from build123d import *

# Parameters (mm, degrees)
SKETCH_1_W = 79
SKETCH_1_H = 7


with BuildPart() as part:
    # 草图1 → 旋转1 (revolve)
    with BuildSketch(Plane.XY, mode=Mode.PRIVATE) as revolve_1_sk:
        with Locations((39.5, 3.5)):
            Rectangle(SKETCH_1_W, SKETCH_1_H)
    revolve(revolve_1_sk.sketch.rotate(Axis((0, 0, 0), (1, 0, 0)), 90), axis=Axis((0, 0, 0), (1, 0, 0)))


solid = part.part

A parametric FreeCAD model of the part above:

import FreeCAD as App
import Part
import Sketcher
from FreeCAD import Vector


def add_polygon(sketch, points):
    """Adds a closed chain of lines whose ends are joined by coincident constraints."""
    first, n = sketch.GeometryCount, len(points)
    for a, b in zip(points, points[1:] + points[:1]):
        sketch.addGeometry(Part.LineSegment(App.Vector(*a, 0), App.Vector(*b, 0)), False)
    for i in range(n):
        sketch.addConstraint(Sketcher.Constraint("Coincident", first + i, 2, first + (i + 1) % n, 1))

doc = App.newDocument("Part")
body = doc.addObject("PartDesign::Body", "Body")

# Sketch on XY plane
sketch1 = doc.addObject("Sketcher::SketchObject", "Sketch")
body.addObject(sketch1)
sketch1.AttachmentSupport = (doc.XY_Plane, [""])
sketch1.MapMode = "FlatFace"
add_polygon(sketch1, [(0, 7), (0, 0), (79, 0), (79, 7)])  # lines 0-3
sketch1.addConstraint(Sketcher.Constraint("Vertical", 0))
sketch1.addConstraint(Sketcher.Constraint("Horizontal", 1))
sketch1.addConstraint(Sketcher.Constraint("Vertical", 2))
sketch1.addConstraint(Sketcher.Constraint("Horizontal", 3))
sketch1.addConstraint(Sketcher.Constraint("Coincident", 0, 2, -1, 1))
sketch1.addConstraint(Sketcher.Constraint("DistanceX", 1, 1, 1, 2, 79.0))
sketch1.addConstraint(Sketcher.Constraint("DistanceY", 0, 2, 0, 1, 7.0))
revolution = doc.addObject("PartDesign::Revolution", "Revolution")
body.addObject(revolution)
revolution.Profile = sketch1
revolution.ReferenceAxis = (sketch1, ["H_Axis"])
revolution.Angle = 360

doc.recompute()
